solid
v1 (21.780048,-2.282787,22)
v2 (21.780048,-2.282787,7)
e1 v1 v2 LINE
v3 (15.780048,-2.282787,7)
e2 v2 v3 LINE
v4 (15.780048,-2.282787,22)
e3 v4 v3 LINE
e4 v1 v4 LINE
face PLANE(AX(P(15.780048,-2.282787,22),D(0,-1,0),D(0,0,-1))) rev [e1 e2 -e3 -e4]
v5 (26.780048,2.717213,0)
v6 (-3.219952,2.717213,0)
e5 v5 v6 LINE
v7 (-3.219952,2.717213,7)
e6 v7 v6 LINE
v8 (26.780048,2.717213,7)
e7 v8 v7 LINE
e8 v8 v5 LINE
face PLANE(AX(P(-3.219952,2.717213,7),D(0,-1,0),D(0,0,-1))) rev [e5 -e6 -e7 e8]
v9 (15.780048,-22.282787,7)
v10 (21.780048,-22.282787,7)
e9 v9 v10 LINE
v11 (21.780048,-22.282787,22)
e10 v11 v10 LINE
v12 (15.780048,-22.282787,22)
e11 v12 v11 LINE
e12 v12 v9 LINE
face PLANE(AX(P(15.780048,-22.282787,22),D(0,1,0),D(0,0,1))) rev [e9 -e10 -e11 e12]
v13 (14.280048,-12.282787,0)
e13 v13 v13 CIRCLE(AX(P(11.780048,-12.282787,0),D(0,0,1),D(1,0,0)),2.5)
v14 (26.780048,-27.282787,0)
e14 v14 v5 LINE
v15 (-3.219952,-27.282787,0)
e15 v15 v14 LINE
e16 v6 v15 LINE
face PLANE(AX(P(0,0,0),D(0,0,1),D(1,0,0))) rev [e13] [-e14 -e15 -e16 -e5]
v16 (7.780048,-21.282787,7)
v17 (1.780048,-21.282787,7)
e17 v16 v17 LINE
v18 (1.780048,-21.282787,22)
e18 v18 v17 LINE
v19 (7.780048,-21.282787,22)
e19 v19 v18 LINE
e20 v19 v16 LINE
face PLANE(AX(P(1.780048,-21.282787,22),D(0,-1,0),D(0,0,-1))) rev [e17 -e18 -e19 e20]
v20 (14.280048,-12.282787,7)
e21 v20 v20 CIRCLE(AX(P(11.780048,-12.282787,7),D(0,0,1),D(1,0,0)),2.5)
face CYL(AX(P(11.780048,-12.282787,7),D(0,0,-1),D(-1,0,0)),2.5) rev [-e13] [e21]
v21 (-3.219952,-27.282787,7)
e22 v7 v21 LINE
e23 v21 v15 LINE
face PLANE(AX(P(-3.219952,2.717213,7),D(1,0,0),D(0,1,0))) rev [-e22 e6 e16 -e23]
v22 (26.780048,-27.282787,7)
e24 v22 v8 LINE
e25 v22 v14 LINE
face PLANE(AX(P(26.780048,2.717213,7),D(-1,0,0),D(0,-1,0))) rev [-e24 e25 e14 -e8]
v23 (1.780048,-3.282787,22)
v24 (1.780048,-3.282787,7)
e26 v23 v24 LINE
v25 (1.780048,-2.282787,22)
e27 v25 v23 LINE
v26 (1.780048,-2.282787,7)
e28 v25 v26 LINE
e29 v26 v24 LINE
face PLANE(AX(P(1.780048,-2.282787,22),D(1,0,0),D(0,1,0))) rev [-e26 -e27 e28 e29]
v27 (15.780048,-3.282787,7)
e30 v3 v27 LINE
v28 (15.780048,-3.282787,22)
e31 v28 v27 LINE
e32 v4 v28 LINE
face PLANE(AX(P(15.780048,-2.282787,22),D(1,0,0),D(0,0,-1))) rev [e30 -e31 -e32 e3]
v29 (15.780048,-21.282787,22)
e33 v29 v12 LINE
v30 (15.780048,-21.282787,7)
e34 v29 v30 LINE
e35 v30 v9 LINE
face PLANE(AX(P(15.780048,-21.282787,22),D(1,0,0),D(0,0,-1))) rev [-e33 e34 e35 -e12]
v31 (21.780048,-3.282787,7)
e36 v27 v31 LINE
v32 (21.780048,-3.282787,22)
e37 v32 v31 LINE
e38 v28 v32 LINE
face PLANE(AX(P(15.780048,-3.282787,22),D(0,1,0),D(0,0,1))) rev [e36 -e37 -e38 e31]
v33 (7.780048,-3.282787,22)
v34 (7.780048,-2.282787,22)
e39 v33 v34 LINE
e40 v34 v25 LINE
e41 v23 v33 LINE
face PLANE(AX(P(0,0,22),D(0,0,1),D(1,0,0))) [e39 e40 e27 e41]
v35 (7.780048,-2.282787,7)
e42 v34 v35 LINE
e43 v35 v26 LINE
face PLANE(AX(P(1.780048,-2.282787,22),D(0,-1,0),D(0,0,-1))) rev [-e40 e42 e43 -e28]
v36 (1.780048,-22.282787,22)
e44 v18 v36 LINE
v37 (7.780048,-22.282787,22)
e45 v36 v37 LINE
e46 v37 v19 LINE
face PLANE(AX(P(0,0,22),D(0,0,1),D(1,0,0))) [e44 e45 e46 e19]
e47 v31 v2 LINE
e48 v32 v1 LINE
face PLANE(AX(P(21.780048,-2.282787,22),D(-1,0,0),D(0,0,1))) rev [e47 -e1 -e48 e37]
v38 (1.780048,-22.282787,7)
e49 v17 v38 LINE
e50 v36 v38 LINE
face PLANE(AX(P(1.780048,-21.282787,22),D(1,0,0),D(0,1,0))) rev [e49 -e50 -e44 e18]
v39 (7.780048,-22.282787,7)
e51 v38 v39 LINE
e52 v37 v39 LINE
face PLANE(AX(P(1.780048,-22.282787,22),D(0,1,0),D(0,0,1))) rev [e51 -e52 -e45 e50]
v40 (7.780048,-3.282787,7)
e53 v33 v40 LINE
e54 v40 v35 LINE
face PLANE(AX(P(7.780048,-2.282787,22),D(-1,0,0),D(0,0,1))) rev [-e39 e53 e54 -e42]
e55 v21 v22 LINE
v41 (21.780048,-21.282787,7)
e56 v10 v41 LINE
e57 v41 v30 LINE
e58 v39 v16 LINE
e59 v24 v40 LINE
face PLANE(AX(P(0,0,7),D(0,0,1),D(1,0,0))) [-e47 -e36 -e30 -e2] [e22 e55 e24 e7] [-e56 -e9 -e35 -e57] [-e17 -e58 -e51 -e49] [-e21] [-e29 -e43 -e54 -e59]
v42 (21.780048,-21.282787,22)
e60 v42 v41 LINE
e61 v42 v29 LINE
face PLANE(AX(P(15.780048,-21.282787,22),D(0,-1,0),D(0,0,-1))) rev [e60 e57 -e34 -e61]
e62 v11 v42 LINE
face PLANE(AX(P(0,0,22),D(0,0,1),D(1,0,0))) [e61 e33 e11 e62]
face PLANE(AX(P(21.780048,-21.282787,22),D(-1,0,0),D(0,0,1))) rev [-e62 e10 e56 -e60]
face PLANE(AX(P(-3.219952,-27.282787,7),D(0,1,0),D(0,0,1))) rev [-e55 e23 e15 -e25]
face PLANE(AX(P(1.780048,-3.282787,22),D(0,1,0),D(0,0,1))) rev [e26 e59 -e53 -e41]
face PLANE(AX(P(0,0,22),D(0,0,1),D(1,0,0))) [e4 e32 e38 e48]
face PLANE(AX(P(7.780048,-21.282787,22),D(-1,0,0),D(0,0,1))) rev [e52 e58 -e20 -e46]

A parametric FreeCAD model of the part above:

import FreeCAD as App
import Part
import Sketcher
from FreeCAD import Vector


def add_polygon(sketch, points):
    """Adds a closed chain of lines whose ends are joined by coincident constraints."""
    first, n = sketch.GeometryCount, len(points)
    for a, b in zip(points, points[1:] + points[:1]):
        sketch.addGeometry(Part.LineSegment(App.Vector(*a, 0), App.Vector(*b, 0)), False)
    for i in range(n):
        sketch.addConstraint(Sketcher.Constraint("Coincident", first + i, 2, first + (i + 1) % n, 1))

doc = App.newDocument("Part")
body = doc.addObject("PartDesign::Body", "Body")

sketch1 = doc.addObject("Sketcher::SketchObject", "Sketch")
body.addObject(sketch1)
sketch1.AttachmentSupport = (doc.XY_Plane, [""])
sketch1.MapMode = "FlatFace"
add_polygon(sketch1, [(-3.219952, 2.717213), (-3.219952, -27.282787), (26.780048, -27.282787), (26.780048, 2.717213)])
sketch1.addGeometry(Part.Circle(Vector(11.780048, -12.282787, 0), Vector(0, 0, 1), 2.5), False)
sketch1.addConstraint([
    Sketcher.Constraint("Vertical", 0),
    Sketcher.Constraint("Horizontal", 1),
    Sketcher.Constraint("Vertical", 2),
    Sketcher.Constraint("Horizontal", 3),
    Sketcher.Constraint("Equal", 3, 0),
    Sketcher.Constraint("Diameter", 4, 5.0),
    Sketcher.Constraint("DistanceX", 1, 1, 1, 2, 30.0),
    Sketcher.Constraint("DistanceX", 0, 2, 4, 3, 15.0),
    Sketcher.Constraint("DistanceY", 0, 2, 4, 3, 15.0),
    Sketcher.Constraint("DistanceX", -1, 1, 4, 3, 11.780048),
    Sketcher.Constraint("DistanceY", 4, 3, -1, 1, 12.282787),
])
pad1 = doc.addObject("PartDesign::Pad", "Pad")
body.addObject(pad1)
pad1.Profile = sketch1
pad1.Length = 7

sketch2 = doc.addObject("Sketcher::SketchObject", "Sketch001")
body.addObject(sketch2)
sketch2.AttachmentSupport = (doc.XY_Plane, [""])
sketch2.MapMode = "FlatFace"
sketch2.AttachmentOffset = App.Placement(Vector(0, 0, 7), App.Rotation())
add_polygon(sketch2, [(1.780048, -2.282787), (1.780048, -3.282787), (7.780048, -3.282787), (7.780048, -2.282787)])
add_polygon(sketch2, [(15.780048, -2.282787), (15.780048, -3.282787), (21.780048, -3.282787), (21.780048, -2.282787)])
add_polygon(sketch2, [(1.780048, -21.282787), (1.780048, -22.282787), (7.780048, -22.282787), (7.780048, -21.282787)])
add_polygon(sketch2, [(15.780048, -21.282787), (15.780048, -22.282787), (21.780048, -22.282787), (21.780048, -21.282787)])
sketch2.addConstraint([
    Sketcher.Constraint("Vertical", 0),
    Sketcher.Constraint("Horizontal", 1),
    Sketcher.Constraint("Vertical", 2),
    Sketcher.Constraint("Horizontal", 3),
    Sketcher.Constraint("Vertical", 4),
    Sketcher.Constraint("Horizontal", 5),
    Sketcher.Constraint("Vertical", 6),
    Sketcher.Constraint("Horizontal", 7),
    Sketcher.Constraint("Vertical", 8),
    Sketcher.Constraint("Horizontal", 9),
    Sketcher.Constraint("Vertical", 10),
    Sketcher.Constraint("Horizontal", 11),
    Sketcher.Constraint("Vertical", 12),
    Sketcher.Constraint("Horizontal", 13),
    Sketcher.Constraint("Vertical", 14),
    Sketcher.Constraint("Horizontal", 15),
    Sketcher.Constraint("Horizontal", 1, 2, 4, 2),
    Sketcher.Constraint("Horizontal", 3, 2, 6, 2),
    Sketcher.Constraint("Horizontal", 9, 2, 12, 2),
    Sketcher.Constraint("Horizontal", 11, 2, 14, 2),
    Sketcher.Constraint("Vertical", 3, 2, 8, 2),
    Sketcher.Constraint("Vertical", 2, 2, 9, 2),
    Sketcher.Constraint("Vertical", 7, 2, 12, 2),
    Sketcher.Constraint("Vertical", 6, 2, 13, 2),
    Sketcher.Constraint("Equal", 3, 5),
    Sketcher.Constraint("Equal", 6, 8),
    Sketcher.Constraint("DistanceX", 1, 1, 1, 2, 6.0),
    Sketcher.Constraint("DistanceY", 0, 2, 0, 1, 1.0),
    Sketcher.Constraint("DistanceX", 1, 2, 4, 2, 8.0),
    Sketcher.Constraint("DistanceY", 8, 2, 0, 2, 19.0),
    Sketcher.Constraint("DistanceX", -1, 1, 0, 2, 1.780048),
    Sketcher.Constraint("DistanceY", 0, 2, -1, 1, 3.282787),
])
pad2 = doc.addObject("PartDesign::Pad", "Pad001")
body.addObject(pad2)
pad2.Profile = sketch2
pad2.Length = 15

doc.recompute()
